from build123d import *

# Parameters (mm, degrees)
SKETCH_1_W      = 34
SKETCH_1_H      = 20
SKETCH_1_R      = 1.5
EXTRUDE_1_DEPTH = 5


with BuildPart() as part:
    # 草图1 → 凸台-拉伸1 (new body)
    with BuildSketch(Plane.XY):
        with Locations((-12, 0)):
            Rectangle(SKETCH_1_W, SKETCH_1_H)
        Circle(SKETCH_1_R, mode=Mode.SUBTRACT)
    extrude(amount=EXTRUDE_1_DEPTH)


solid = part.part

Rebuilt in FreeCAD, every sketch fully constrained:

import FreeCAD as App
import Part
import Sketcher
from FreeCAD import Vector
Q = App.Units.Quantity


def add_polygon(sketch, points):
    """Adds a closed chain of lines whose ends are joined by coincident constraints."""
    first, n = sketch.GeometryCount, len(points)
    for a, b in zip(points, points[1:] + points[:1]):
        sketch.addGeometry(Part.LineSegment(App.Vector(*a, 0), App.Vector(*b, 0)), False)
    for i in range(n):
        sketch.addConstraint(Sketcher.Constraint("Coincident", first + i, 2, first + (i + 1) % n, 1))

doc = App.newDocument("Part")
body = doc.addObject("PartDesign::Body", "Body")

# Sketch on XY plane
sketch1 = doc.addObject("Sketcher::SketchObject", "Sketch")
body.addObject(sketch1)
sketch1.AttachmentSupport = (doc.XY_Plane, [""])
sketch1.MapMode = "FlatFace"
add_polygon(sketch1, [(-29, 10), (-29, -10), (5, -10), (5, 10)])  # lines 0-3
sketch1.addGeometry(Part.Circle(Vector(0, 0, 0), Vector(0, 0, 1), 1.5), False)  # 4
sketch1.addConstraint(Sketcher.Constraint("Vertical", 0))
sketch1.addConstraint(Sketcher.Constraint("Horizontal", 1))
sketch1.addConstraint(Sketcher.Constraint("Vertical", 2))
sketch1.addConstraint(Sketcher.Constraint("Horizontal", 3))
sketch1.addConstraint(Sketcher.Constraint("Coincident", 4, 3, -1, 1))
sketch1.addConstraint(Sketcher.Constraint("Diameter", 4, Q("3 mm")))
sketch1.addConstraint(Sketcher.Constraint("DistanceX", 1, 1, 1, 2, Q("34 mm")))
sketch1.addConstraint(Sketcher.Constraint("DistanceY", 0, 2, 0, 1, Q("20 mm")))
sketch1.addConstraint(Sketcher.Constraint("DistanceX", 0, 2, -1, 1, Q("29 mm")))
sketch1.addConstraint(Sketcher.Constraint("DistanceY", 0, 2, -1, 1, Q("10 mm")))
pad1 = doc.addObject("PartDesign::Pad", "Pad")
body.addObject(pad1)
pad1.Profile = sketch1
pad1.Length = 5

doc.recompute()
